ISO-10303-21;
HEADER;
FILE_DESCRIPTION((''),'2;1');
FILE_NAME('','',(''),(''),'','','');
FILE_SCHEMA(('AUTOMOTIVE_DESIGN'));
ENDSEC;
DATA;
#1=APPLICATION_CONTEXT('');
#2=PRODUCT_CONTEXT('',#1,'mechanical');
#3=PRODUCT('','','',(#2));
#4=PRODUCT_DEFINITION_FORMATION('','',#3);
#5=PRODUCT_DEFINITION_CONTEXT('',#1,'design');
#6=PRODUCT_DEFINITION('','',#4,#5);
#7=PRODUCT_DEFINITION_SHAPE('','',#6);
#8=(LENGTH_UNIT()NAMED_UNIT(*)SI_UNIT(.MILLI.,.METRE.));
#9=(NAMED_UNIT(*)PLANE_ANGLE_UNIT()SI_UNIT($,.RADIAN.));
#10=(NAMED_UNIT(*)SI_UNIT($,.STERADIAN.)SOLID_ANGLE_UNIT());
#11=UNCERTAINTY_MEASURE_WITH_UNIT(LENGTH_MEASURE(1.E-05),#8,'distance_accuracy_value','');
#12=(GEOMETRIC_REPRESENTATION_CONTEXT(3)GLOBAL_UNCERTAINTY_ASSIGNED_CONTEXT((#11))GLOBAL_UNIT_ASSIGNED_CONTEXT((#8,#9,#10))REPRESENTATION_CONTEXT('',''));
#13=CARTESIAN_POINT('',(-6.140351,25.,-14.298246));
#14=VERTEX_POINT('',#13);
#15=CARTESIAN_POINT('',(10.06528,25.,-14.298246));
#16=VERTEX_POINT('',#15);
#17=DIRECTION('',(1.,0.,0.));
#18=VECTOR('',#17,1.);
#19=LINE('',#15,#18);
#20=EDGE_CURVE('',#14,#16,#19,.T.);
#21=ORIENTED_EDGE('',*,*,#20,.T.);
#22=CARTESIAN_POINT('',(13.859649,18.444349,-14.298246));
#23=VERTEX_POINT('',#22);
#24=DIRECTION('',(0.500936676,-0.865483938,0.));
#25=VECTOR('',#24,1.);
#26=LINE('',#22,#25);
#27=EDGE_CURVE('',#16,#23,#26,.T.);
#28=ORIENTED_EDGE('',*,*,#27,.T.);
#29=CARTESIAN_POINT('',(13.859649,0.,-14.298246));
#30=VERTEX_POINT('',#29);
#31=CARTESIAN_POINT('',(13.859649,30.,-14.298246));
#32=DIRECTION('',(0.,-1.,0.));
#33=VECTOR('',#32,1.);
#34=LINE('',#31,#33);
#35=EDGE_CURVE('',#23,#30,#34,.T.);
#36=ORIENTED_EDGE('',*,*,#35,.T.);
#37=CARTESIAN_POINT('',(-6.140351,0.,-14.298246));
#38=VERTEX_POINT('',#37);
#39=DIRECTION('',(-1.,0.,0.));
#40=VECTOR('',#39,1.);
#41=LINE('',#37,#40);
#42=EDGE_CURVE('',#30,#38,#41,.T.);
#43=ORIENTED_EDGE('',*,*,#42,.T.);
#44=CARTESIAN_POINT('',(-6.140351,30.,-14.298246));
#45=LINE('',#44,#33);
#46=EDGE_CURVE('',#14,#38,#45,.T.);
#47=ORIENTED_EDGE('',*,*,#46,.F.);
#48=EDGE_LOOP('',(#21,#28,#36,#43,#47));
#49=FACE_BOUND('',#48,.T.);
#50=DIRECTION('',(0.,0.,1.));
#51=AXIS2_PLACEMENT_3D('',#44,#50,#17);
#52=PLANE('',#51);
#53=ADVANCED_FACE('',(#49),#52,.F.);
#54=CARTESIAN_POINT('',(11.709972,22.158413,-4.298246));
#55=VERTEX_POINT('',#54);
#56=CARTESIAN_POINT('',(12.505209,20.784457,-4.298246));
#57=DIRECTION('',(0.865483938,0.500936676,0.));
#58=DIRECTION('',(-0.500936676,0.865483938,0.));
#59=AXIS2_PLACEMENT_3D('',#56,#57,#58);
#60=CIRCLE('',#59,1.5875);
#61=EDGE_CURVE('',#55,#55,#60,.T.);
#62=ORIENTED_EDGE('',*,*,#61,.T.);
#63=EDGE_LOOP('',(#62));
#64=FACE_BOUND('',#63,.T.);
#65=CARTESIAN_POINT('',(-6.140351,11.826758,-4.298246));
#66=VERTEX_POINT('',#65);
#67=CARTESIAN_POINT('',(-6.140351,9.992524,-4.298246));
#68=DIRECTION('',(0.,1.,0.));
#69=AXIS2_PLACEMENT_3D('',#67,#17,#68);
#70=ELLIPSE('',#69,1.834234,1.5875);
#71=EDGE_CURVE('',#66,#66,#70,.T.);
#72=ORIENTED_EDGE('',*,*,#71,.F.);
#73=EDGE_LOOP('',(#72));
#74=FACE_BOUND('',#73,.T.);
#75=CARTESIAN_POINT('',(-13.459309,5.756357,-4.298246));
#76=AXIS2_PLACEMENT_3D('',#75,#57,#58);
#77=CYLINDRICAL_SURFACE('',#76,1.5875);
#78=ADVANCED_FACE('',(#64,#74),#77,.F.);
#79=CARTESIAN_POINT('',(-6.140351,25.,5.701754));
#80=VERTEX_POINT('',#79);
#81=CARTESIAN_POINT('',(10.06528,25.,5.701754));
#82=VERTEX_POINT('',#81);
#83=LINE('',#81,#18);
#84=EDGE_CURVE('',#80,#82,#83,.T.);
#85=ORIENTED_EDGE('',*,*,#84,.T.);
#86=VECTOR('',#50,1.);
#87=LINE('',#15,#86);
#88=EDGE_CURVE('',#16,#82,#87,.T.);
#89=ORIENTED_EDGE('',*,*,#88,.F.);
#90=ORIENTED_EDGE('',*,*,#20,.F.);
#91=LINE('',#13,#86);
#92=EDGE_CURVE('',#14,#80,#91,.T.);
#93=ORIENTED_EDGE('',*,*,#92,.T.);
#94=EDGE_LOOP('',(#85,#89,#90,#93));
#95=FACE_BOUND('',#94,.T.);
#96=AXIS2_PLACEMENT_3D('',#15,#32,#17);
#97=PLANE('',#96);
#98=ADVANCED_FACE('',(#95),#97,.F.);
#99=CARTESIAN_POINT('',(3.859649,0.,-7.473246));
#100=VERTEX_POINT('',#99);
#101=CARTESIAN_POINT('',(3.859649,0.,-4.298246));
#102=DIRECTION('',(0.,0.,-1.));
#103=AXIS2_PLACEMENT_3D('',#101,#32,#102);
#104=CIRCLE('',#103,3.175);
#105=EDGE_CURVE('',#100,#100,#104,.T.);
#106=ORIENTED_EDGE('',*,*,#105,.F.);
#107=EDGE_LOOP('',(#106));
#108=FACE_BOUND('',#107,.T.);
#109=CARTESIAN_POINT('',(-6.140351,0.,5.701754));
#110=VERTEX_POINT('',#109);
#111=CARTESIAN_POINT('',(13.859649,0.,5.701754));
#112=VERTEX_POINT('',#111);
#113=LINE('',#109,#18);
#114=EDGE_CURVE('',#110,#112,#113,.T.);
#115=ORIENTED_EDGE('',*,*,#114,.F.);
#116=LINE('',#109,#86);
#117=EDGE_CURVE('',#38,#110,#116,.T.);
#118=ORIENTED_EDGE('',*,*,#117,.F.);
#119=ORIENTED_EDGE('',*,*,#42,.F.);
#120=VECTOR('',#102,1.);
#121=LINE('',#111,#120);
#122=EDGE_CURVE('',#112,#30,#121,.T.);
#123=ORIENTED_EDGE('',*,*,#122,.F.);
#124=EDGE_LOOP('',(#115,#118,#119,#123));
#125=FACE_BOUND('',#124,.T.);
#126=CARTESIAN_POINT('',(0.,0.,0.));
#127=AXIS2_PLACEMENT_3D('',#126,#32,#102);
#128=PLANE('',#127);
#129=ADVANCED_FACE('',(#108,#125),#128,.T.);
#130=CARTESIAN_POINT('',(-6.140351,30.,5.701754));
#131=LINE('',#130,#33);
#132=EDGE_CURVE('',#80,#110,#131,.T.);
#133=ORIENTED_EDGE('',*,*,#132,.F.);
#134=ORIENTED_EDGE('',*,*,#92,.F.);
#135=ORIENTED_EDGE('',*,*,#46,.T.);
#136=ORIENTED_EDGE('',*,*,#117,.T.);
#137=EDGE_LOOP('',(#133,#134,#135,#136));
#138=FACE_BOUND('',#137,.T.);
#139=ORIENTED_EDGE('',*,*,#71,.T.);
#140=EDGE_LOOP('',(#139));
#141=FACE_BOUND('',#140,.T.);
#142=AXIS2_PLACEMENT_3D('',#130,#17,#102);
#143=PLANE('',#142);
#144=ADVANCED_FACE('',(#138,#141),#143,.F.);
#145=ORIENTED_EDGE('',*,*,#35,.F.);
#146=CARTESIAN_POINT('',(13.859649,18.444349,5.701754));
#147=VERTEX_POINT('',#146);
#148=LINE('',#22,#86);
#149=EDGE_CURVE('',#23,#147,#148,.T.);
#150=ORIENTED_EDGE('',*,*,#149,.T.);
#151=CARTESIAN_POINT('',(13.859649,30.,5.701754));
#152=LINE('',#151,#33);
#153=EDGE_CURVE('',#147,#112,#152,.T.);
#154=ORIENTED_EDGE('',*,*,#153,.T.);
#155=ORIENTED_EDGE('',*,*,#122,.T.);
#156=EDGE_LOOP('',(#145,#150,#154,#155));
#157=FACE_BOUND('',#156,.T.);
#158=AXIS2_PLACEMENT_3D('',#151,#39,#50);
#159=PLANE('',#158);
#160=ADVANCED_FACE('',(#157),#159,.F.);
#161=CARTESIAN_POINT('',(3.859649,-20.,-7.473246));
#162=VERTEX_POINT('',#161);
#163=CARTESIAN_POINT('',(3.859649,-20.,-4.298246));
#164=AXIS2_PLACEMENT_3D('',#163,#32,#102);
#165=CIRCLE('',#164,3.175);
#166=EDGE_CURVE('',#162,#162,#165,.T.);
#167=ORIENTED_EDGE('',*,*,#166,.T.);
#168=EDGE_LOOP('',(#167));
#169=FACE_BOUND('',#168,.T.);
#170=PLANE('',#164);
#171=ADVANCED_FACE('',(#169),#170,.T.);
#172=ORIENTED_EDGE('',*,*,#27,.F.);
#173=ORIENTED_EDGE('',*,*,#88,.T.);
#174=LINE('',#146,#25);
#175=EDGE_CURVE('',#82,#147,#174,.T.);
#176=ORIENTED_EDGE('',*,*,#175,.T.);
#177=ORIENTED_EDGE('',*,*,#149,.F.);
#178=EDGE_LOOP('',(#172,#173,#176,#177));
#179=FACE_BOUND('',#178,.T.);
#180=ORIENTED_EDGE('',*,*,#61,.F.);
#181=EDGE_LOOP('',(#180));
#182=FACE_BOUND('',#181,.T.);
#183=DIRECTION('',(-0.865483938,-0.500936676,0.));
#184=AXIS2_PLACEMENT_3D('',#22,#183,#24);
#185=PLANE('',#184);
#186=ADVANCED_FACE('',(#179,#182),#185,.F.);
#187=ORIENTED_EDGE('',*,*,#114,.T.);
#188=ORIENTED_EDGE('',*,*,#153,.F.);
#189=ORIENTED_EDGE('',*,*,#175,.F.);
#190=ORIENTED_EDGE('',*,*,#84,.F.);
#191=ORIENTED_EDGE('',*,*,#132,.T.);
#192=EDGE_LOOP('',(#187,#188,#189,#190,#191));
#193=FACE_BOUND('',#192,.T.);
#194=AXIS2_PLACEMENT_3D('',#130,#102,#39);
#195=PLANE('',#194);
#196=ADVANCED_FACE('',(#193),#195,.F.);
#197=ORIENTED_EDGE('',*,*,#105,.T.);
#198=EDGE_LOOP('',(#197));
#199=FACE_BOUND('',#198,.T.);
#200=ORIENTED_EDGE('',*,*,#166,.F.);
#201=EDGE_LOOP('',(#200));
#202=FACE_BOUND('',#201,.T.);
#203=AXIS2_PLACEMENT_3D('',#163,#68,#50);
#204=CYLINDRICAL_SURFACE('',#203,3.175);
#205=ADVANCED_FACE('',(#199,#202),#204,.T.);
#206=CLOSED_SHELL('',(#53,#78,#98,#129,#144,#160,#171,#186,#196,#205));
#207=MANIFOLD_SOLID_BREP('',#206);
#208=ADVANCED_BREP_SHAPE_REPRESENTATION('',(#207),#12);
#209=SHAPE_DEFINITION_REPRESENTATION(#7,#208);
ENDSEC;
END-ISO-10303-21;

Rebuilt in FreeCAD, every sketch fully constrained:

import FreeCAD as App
import Part
import Sketcher
from FreeCAD import Vector


def add_polygon(sketch, points):
    """Adds a closed chain of lines whose ends are joined by coincident constraints."""
    first, n = sketch.GeometryCount, len(points)
    for a, b in zip(points, points[1:] + points[:1]):
        sketch.addGeometry(Part.LineSegment(App.Vector(*a, 0), App.Vector(*b, 0)), False)
    for i in range(n):
        sketch.addConstraint(Sketcher.Constraint("Coincident", first + i, 2, first + (i + 1) % n, 1))

doc = App.newDocument("Part")
body = doc.addObject("PartDesign::Body", "Body")

# Sketch on XZ plane
sketch1 = doc.addObject("Sketcher::SketchObject", "Sketch")
body.addObject(sketch1)
sketch1.AttachmentSupport = (doc.XZ_Plane, [""])
sketch1.MapMode = "FlatFace"
add_polygon(sketch1, [(-6, -14), (-6, 6), (14, 6), (14, -14)])  # lines 0-3
sketch1.addConstraint(Sketcher.Constraint("Vertical", 0))
sketch1.addConstraint(Sketcher.Constraint("Horizontal", 1))
sketch1.addConstraint(Sketcher.Constraint("Vertical", 2))
sketch1.addConstraint(Sketcher.Constraint("Horizontal", 3))
sketch1.addConstraint(Sketcher.Constraint("Equal", 3, 0))
sketch1.addConstraint(Sketcher.Constraint("DistanceX", 1, 1, 1, 2, 20.0))
sketch1.addConstraint(Sketcher.Constraint("DistanceX", 0, 2, -1, 1, 6.140351))
sketch1.addConstraint(Sketcher.Constraint("DistanceY", -1, 1, 0, 2, 5.701754))
pad1 = doc.addObject("PartDesign::Pad", "Pad")
body.addObject(pad1)
pad1.Profile = sketch1
pad1.Length = 30
pad1.Reversed = True

# Sketch on XY plane
sketch2 = doc.addObject("Sketcher::SketchObject", "Sketch001")
body.addObject(sketch2)
sketch2.AttachmentSupport = (doc.XY_Plane, [""])
sketch2.MapMode = "FlatFace"
add_polygon(sketch2, [(13.9, 18.4), (13.9, 24.7), (11.2, 23.1)])  # lines 0-2
sketch2.addConstraint(Sketcher.Constraint("Vertical", 0))
sketch2.addConstraint(Sketcher.Constraint("Perpendicular", 1, 2))
sketch2.addConstraint(Sketcher.Constraint("DistanceY", 0, 1, 0, 2, 6.248098))
sketch2.addConstraint(Sketcher.Constraint("Distance", 1, 3.129902))
sketch2.addConstraint(Sketcher.Constraint("DistanceX", -1, 1, 0, 2, 13.859649))
sketch2.addConstraint(Sketcher.Constraint("DistanceY", -1, 1, 2, 2, 18.444349))
pocket1 = doc.addObject("PartDesign::Pocket", "Pocket")
body.addObject(pocket1)
pocket1.Profile = sketch2
pocket1.Type = "ThroughAll"
pocket1.Midplane = True

# Sketch on an angled plane
sketch3 = doc.addObject("Sketcher::SketchObject", "Sketch002")
body.addObject(sketch3)
sketch3.Placement = App.Placement(Vector(18.378339, 10.637267, 0), App.Rotation(Vector(0, 0, -1), Vector(-0.500936676, 0.865483938, 0), Vector(0.865483938, 0.500936676, 0), "ZXY"))
sketch3.addGeometry(Part.Circle(Vector(4.3, 11.7, 0), Vector(0, 0, 1), 1.6), False)
sketch3.addConstraint(Sketcher.Constraint("Diameter", 0, 3.175))
sketch3.addConstraint(Sketcher.Constraint("DistanceX", -1, 1, 0, 3, 4.298246))
sketch3.addConstraint(Sketcher.Constraint("DistanceY", -1, 1, 0, 3, 11.724296))
pocket2 = doc.addObject("PartDesign::Pocket", "Pocket001")
body.addObject(pocket2)
pocket2.Profile = sketch3
pocket2.Length = 30

# Sketch on XZ plane
sketch4 = doc.addObject("Sketcher::SketchObject", "Sketch003")
body.addObject(sketch4)
sketch4.AttachmentSupport = (doc.XZ_Plane, [""])
sketch4.MapMode = "FlatFace"
sketch4.addGeometry(Part.Circle(Vector(3.9, -4.3, 0), Vector(0, 0, 1), 3.2), False)
sketch4.addConstraint(Sketcher.Constraint("Diameter", 0, 6.35))
sketch4.addConstraint(Sketcher.Constraint("DistanceX", -1, 1, 0, 3, 3.859649))
sketch4.addConstraint(Sketcher.Constraint("DistanceY", 0, 3, -1, 1, 4.298246))
pad2 = doc.addObject("PartDesign::Pad", "Pad001")
body.addObject(pad2)
pad2.Profile = sketch4
pad2.Length = 20

# Sketch on XY plane
sketch5 = doc.addObject("Sketcher::SketchObject", "Sketch004")
body.addObject(sketch5)
sketch5.AttachmentSupport = (doc.XY_Plane, [""])
sketch5.MapMode = "FlatFace"
sketch5.AttachmentOffset = App.Placement(Vector(0, 0, 5.701754), App.Rotation())
add_polygon(sketch5, [(-6, 25), (10, 25), (14, 18), (14, 30), (-6, 30)])  # lines 0-4
sketch5.addConstraint(Sketcher.Constraint("Horizontal", 0))
sketch5.addConstraint(Sketcher.Constraint("Vertical", 2))
sketch5.addConstraint(Sketcher.Constraint("Horizontal", 3))
sketch5.addConstraint(Sketcher.Constraint("Vertical", 4))
sketch5.addConstraint(Sketcher.Constraint("DistanceX", 3, 2, 3, 1, 20.0))
sketch5.addConstraint(Sketcher.Constraint("DistanceY", 4, 2, 4, 1, 5.0))
sketch5.addConstraint(Sketcher.Constraint("DistanceY", -1, 1, 0, 2, 25.0))
sketch5.addConstraint(Sketcher.Constraint("DistanceX", 0, 1, 0, 2, 16.20563))
sketch5.addConstraint(Sketcher.Constraint("DistanceY", 2, 1, 2, 2, 11.555651))
sketch5.addConstraint(Sketcher.Constraint("DistanceX", -1, 1, 0, 2, 10.06528))
pocket3 = doc.addObject("PartDesign::Pocket", "Pocket002")
body.addObject(pocket3)
pocket3.Profile = sketch5
pocket3.Type = "ThroughAll"

doc.recompute()
